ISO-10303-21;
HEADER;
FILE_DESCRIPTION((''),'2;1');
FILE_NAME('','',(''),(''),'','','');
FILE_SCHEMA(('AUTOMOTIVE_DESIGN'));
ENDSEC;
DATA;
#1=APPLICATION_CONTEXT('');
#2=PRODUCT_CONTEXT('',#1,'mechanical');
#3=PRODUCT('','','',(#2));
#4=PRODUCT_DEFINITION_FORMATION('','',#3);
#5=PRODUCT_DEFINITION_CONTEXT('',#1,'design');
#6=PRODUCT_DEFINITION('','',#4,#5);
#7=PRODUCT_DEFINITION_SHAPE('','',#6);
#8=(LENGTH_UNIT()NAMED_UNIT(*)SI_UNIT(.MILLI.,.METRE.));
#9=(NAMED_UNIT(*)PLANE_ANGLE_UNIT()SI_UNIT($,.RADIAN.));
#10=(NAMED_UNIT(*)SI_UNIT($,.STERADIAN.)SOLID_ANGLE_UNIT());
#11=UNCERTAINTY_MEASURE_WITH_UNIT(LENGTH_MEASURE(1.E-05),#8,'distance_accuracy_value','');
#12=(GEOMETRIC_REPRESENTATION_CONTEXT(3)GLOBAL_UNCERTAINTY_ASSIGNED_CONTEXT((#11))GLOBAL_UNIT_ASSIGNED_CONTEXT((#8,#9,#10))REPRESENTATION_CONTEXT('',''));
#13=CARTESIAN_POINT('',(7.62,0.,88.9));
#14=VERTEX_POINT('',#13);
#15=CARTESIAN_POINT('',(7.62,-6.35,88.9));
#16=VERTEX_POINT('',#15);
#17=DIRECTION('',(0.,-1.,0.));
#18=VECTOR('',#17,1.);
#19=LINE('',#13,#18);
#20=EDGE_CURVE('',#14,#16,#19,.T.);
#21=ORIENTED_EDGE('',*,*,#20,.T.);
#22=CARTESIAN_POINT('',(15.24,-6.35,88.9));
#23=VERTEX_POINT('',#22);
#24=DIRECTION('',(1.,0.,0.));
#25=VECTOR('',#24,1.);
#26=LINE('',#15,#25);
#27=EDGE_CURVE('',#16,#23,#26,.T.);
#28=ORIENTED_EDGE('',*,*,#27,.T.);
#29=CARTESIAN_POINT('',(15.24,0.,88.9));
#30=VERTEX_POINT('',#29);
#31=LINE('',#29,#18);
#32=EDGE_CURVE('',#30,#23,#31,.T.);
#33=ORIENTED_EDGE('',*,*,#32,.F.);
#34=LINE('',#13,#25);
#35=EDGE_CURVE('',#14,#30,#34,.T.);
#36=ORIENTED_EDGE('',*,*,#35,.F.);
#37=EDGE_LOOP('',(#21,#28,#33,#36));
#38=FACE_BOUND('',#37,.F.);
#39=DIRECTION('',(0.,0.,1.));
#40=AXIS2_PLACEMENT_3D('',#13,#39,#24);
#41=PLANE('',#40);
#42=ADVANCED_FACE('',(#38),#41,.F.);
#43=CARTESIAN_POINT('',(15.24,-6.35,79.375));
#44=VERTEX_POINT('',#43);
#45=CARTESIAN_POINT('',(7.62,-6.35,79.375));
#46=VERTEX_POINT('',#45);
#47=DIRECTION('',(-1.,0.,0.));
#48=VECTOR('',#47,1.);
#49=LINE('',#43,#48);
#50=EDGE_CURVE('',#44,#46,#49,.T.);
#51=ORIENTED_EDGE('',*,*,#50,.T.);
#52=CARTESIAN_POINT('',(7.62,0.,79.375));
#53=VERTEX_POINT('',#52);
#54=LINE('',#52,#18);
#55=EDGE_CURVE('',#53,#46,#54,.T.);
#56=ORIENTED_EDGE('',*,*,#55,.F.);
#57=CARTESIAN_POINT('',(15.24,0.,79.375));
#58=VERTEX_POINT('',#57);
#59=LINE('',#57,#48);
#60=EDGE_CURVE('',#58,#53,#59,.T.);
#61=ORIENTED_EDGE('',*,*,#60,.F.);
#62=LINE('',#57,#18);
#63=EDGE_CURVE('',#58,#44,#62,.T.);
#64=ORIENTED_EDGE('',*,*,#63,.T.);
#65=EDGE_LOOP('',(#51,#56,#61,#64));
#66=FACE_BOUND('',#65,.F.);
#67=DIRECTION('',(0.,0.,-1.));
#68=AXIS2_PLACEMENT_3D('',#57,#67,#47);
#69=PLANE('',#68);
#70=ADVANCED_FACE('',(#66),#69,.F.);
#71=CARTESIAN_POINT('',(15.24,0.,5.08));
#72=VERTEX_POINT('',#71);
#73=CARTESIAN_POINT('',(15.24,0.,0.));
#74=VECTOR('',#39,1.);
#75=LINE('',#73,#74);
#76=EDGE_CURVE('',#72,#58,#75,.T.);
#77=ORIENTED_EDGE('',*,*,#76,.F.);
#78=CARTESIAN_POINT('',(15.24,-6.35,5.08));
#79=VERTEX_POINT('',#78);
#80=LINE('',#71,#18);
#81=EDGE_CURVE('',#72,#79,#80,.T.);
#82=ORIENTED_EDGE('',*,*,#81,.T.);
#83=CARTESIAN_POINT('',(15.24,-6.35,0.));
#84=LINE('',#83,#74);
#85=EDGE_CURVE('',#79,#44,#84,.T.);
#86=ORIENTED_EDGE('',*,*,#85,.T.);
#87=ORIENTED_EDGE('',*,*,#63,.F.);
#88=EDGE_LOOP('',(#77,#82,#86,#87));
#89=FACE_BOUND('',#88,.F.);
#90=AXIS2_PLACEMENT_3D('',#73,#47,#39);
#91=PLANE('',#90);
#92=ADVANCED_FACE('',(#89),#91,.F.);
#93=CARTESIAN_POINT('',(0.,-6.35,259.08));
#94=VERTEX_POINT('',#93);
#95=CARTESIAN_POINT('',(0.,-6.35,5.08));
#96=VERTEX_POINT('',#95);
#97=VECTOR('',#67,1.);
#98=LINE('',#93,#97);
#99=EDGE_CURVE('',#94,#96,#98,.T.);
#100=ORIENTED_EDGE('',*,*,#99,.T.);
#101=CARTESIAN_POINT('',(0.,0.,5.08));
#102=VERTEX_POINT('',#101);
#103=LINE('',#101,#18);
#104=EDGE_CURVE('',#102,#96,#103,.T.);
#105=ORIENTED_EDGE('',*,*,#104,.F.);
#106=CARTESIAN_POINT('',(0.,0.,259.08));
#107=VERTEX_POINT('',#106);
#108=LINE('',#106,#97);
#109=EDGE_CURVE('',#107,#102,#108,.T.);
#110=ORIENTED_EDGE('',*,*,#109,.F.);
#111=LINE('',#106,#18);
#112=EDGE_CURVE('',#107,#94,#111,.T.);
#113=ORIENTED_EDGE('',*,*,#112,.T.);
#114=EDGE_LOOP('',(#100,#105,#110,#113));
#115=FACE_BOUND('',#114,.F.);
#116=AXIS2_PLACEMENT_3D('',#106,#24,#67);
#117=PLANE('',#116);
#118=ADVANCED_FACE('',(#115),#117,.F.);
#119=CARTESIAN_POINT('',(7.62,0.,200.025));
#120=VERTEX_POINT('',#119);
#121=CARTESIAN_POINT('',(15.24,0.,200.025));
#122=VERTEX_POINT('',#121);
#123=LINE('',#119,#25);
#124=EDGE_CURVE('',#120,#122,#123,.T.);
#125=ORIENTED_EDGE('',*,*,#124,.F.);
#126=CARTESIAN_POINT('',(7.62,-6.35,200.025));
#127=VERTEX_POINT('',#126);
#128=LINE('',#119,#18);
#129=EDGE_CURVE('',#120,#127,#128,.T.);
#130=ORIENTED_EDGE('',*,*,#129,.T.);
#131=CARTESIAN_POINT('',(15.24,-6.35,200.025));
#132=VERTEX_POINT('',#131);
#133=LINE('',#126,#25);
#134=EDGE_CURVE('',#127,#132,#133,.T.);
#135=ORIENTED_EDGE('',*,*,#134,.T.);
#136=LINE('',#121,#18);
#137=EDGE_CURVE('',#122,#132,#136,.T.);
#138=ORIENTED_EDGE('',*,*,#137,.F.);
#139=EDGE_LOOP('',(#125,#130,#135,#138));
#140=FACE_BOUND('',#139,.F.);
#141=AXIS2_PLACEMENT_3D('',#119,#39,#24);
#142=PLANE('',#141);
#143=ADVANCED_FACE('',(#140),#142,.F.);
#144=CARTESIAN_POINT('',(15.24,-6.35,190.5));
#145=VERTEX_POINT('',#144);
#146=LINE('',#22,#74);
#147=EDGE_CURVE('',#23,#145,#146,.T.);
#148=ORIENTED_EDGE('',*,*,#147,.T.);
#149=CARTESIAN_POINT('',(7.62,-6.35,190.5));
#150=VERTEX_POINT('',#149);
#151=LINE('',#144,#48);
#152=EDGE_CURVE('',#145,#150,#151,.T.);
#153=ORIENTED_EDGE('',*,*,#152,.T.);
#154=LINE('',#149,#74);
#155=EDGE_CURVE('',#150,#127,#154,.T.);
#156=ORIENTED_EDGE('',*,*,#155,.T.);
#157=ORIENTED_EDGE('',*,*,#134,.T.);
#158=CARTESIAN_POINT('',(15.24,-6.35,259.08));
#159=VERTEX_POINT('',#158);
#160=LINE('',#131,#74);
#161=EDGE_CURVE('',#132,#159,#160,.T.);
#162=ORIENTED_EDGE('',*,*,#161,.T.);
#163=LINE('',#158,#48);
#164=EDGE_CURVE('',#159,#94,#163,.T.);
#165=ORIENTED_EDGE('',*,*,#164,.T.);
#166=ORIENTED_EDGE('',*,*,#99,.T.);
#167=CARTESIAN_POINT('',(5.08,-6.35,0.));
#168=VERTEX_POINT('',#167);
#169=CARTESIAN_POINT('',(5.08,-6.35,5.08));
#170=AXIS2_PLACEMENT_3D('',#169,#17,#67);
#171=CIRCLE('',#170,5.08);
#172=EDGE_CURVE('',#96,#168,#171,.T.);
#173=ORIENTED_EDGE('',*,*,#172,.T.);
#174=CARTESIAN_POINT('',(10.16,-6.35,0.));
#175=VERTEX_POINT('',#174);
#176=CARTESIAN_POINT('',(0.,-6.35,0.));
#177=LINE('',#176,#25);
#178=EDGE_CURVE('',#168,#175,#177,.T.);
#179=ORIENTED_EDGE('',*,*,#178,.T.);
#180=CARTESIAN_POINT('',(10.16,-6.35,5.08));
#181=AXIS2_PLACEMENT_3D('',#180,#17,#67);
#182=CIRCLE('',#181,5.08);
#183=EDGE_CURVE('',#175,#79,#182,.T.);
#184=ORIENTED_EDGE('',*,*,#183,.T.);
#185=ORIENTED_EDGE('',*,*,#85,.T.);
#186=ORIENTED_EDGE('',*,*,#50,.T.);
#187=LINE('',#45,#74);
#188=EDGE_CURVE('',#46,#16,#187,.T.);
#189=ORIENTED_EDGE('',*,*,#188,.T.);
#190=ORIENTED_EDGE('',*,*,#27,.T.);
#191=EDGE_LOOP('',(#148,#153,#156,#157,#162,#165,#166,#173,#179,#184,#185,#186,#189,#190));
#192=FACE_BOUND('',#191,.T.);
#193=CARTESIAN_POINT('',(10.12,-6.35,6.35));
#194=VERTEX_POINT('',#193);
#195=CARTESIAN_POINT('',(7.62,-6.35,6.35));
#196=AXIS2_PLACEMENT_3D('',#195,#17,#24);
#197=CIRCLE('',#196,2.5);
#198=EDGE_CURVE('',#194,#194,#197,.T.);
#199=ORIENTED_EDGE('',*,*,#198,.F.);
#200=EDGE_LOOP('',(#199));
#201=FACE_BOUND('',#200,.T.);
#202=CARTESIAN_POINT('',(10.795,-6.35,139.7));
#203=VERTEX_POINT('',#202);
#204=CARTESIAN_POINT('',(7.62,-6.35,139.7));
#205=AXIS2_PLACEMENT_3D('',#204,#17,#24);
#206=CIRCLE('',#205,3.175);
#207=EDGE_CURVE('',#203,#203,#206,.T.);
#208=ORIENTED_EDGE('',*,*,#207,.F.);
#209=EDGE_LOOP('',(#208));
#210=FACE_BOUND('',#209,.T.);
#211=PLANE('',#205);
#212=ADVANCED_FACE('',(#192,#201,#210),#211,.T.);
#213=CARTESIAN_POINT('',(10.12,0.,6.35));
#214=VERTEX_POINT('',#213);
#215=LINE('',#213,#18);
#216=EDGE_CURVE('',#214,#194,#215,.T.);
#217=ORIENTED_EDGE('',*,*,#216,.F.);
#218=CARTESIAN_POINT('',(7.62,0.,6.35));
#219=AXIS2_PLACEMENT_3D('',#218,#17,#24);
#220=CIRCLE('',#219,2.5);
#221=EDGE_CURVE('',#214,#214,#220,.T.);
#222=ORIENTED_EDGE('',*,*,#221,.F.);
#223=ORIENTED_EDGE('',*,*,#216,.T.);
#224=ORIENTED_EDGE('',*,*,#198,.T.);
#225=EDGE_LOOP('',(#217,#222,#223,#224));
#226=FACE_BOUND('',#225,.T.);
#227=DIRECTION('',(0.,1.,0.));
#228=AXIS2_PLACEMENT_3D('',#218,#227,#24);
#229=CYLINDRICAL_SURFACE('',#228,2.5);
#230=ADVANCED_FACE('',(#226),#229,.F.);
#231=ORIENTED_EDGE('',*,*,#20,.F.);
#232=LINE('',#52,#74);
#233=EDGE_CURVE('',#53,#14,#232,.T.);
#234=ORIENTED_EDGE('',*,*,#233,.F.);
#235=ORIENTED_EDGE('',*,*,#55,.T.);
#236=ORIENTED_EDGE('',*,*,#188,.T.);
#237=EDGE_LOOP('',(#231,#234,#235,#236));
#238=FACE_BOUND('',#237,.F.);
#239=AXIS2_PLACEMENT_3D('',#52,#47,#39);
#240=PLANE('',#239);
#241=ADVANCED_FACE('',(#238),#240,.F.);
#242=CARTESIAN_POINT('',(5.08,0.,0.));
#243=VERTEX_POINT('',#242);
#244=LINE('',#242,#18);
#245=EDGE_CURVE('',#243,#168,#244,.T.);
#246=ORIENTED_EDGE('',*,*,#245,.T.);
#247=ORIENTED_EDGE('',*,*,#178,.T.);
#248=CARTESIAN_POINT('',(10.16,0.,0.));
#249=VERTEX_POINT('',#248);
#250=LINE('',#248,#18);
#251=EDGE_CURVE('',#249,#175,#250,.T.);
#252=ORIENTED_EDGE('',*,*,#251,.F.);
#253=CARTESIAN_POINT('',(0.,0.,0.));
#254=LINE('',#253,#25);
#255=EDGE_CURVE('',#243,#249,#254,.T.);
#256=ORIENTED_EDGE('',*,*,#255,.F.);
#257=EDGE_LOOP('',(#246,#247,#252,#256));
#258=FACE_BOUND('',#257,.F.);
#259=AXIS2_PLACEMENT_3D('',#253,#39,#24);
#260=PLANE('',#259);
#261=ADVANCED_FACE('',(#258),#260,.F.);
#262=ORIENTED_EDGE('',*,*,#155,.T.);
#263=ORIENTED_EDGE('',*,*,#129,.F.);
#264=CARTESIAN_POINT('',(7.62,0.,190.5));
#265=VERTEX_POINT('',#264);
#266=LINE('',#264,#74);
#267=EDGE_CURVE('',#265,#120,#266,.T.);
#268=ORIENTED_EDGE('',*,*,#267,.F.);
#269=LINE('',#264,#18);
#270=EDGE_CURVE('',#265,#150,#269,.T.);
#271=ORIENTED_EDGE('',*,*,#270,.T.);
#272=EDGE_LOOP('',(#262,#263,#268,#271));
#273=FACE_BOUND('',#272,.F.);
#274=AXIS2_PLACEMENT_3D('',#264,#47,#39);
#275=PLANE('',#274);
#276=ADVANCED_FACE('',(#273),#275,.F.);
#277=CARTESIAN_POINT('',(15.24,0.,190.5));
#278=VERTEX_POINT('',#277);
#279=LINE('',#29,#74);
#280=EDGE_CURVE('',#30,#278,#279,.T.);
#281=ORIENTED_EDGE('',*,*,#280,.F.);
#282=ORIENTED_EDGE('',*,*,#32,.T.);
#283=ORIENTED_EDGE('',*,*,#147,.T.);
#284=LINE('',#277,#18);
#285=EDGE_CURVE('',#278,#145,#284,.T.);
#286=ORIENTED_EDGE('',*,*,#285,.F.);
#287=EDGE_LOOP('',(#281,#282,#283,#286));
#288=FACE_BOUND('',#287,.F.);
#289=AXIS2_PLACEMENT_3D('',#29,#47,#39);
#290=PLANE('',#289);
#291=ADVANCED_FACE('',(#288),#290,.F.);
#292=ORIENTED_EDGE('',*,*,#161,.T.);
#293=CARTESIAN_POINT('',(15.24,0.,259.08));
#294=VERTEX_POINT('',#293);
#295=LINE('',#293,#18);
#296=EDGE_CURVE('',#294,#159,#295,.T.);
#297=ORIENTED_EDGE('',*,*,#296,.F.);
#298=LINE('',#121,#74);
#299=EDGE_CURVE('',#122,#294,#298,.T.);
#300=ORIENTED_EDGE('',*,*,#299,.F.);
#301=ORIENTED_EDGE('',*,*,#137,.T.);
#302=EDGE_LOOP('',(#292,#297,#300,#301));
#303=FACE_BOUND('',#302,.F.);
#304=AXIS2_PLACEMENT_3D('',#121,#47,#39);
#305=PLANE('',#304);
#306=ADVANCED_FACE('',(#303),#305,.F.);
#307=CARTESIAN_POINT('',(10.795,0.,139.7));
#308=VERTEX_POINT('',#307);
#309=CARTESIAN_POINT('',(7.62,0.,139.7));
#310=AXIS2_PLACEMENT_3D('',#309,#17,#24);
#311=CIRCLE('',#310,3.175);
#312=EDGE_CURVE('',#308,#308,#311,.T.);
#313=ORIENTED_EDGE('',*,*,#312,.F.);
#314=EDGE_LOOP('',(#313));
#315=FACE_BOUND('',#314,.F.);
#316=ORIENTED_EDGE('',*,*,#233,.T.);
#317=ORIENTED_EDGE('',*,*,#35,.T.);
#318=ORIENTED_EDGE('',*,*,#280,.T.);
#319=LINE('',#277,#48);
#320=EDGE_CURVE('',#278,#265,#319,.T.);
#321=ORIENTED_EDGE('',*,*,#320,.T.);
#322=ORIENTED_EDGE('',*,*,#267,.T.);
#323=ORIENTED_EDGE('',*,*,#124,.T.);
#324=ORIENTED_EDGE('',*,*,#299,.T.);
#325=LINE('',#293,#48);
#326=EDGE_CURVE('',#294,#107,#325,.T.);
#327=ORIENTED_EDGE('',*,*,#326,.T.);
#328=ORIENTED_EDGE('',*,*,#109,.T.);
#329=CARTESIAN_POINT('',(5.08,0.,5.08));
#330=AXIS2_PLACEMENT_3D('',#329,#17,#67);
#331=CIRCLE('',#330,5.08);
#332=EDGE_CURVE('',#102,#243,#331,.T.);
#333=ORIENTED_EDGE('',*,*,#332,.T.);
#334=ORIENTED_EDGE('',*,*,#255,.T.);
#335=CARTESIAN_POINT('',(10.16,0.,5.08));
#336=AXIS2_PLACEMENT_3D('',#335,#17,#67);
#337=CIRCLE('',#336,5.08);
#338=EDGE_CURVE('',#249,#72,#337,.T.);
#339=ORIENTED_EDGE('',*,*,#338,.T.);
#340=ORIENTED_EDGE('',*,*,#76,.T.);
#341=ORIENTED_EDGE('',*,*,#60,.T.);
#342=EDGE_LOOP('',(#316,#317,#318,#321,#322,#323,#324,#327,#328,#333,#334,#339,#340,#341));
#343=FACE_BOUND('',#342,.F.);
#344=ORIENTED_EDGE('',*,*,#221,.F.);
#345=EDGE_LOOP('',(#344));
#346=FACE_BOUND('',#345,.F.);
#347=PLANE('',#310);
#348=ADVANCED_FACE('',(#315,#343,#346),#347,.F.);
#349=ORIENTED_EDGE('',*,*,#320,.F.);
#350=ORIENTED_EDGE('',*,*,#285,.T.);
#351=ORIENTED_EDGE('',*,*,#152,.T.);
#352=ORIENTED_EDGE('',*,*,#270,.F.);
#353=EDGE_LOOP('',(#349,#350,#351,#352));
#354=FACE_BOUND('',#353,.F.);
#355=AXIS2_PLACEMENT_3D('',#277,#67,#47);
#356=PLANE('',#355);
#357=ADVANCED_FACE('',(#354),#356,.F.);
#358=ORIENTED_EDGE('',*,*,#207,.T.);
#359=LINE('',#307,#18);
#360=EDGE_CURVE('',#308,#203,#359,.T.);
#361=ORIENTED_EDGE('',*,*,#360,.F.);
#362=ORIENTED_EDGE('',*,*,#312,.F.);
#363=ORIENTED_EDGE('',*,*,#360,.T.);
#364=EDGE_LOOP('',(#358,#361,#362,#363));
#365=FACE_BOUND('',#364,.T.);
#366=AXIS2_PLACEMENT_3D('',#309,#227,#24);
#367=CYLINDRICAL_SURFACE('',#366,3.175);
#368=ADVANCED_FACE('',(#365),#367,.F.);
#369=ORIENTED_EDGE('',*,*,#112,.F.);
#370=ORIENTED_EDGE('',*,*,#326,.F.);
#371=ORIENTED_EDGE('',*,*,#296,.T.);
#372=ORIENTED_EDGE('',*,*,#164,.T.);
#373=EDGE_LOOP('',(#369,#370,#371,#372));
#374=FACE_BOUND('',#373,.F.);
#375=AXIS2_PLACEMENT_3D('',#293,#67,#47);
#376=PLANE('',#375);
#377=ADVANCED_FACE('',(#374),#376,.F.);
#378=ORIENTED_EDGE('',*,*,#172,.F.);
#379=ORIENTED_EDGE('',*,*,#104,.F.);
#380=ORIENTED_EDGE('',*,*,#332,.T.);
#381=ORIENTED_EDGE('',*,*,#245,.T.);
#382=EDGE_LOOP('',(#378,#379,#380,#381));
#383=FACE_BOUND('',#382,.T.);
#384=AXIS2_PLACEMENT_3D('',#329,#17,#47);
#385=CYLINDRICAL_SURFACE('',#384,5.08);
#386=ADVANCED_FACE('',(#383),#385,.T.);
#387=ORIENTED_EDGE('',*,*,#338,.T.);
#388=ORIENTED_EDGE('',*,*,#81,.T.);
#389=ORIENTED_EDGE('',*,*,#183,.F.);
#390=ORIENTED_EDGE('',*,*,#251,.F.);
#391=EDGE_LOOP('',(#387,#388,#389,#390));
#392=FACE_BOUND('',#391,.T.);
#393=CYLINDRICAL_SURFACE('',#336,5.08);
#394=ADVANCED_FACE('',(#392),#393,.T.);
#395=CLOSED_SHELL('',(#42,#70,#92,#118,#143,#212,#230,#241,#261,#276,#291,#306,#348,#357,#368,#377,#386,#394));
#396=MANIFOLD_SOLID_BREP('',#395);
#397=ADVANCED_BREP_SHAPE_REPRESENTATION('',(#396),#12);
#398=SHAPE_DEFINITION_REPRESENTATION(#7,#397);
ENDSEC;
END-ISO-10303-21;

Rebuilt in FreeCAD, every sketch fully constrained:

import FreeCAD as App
import Part
import Sketcher
from FreeCAD import Vector
Q = App.Units.Quantity


def edges_at(feature, points):
    """Names of the edges that pass closest to the given points."""
    edges = feature.Shape.Edges
    near = lambda p: min(range(len(edges)), key=lambda i: edges[i].distToShape(Part.Vertex(*p))[0])
    return sorted({f"Edge{near(p) + 1}" for p in points})


def add_polygon(sketch, points):
    """Adds a closed chain of lines whose ends are joined by coincident constraints."""
    first, n = sketch.GeometryCount, len(points)
    for a, b in zip(points, points[1:] + points[:1]):
        sketch.addGeometry(Part.LineSegment(App.Vector(*a, 0), App.Vector(*b, 0)), False)
    for i in range(n):
        sketch.addConstraint(Sketcher.Constraint("Coincident", first + i, 2, first + (i + 1) % n, 1))

doc = App.newDocument("Part")
body = doc.addObject("PartDesign::Body", "Body")

# Sketch on XZ plane
sketch1 = doc.addObject("Sketcher::SketchObject", "Sketch")
body.addObject(sketch1)
sketch1.AttachmentSupport = (doc.XZ_Plane, [""])
sketch1.MapMode = "FlatFace"
add_polygon(sketch1, [(0, 259.08), (0, 0), (15.24, 0), (15.24, 79.375), (7.62, 79.375), (7.62, 88.9), (15.24, 88.9), (15.24, 190.5), (7.62, 190.5), (7.62, 200.025), (15.24, 200.025), (15.24, 259.08)])  # lines 0-11
sketch1.addGeometry(Part.Circle(Vector(7.62, 6.35, 0), Vector(0, 0, 1), 2.5), False)  # 12
sketch1.addGeometry(Part.Circle(Vector(7.62, 139.7, 0), Vector(0, 0, 1), 3.175), False)  # 13
sketch1.addConstraint(Sketcher.Constraint("Vertical", 0))
sketch1.addConstraint(Sketcher.Constraint("Horizontal", 1))
sketch1.addConstraint(Sketcher.Constraint("Vertical", 2))
sketch1.addConstraint(Sketcher.Constraint("Horizontal", 3))
sketch1.addConstraint(Sketcher.Constraint("Vertical", 4))
sketch1.addConstraint(Sketcher.Constraint("Horizontal", 5))
sketch1.addConstraint(Sketcher.Constraint("Vertical", 6))
sketch1.addConstraint(Sketcher.Constraint("Horizontal", 7))
sketch1.addConstraint(Sketcher.Constraint("Vertical", 8))
sketch1.addConstraint(Sketcher.Constraint("Horizontal", 9))
sketch1.addConstraint(Sketcher.Constraint("Vertical", 10))
sketch1.addConstraint(Sketcher.Constraint("Horizontal", 11))
sketch1.addConstraint(Sketcher.Constraint("Coincident", 0, 2, -1, 1))
sketch1.addConstraint(Sketcher.Constraint("Vertical", 12, 3, 13, 3))
sketch1.addConstraint(Sketcher.Constraint("Vertical", 13, 3, 3, 2))
sketch1.addConstraint(Sketcher.Constraint("Vertical", 2, 2, 5, 2))
sketch1.addConstraint(Sketcher.Constraint("Vertical", 4, 2, 7, 2))
sketch1.addConstraint(Sketcher.Constraint("Vertical", 6, 2, 9, 2))
sketch1.addConstraint(Sketcher.Constraint("Equal", 4, 8))
sketch1.addConstraint(Sketcher.Constraint("Diameter", 13, Q("0.25 in")))
sketch1.addConstraint(Sketcher.Constraint("DistanceY", 6, 1, 6, 2, Q("4 in")))
sketch1.addConstraint(Sketcher.Constraint("DistanceX", 1, 1, 1, 2, Q("0.6 in")))
sketch1.addConstraint(Sketcher.Constraint("DistanceX", 3, 2, 3, 1, Q("0.3 in")))
sketch1.addConstraint(Sketcher.Constraint("DistanceY", 0, 2, 0, 1, Q("10.2 in")))
sketch1.addConstraint(Sketcher.Constraint("DistanceY", 4, 2, 13, 3, Q("2 in")))
sketch1.addConstraint(Sketcher.Constraint("DistanceY", -1, 1, 13, 3, Q("5.5 in")))
sketch1.addConstraint(Sketcher.Constraint("Diameter", 12, Q("5 mm")))
sketch1.addConstraint(Sketcher.Constraint("DistanceY", 2, 1, 2, 2, Q("3.125 in")))
sketch1.addConstraint(Sketcher.Constraint("DistanceY", -1, 1, 12, 3, Q("0.25 in")))
pad1 = doc.addObject("PartDesign::Pad", "Pad")
body.addObject(pad1)
pad1.Profile = sketch1
pad1.Length = Q("0.25 in")
doc.recompute()

fillet = doc.addObject("PartDesign::Fillet", "Fillet")
body.addObject(fillet)
fillet.Base = (pad1, edges_at(pad1, [(15.24, -3.175, 0), (0, -3.175, 0)]))
fillet.Radius = Q("0.2 in")

doc.recompute()
